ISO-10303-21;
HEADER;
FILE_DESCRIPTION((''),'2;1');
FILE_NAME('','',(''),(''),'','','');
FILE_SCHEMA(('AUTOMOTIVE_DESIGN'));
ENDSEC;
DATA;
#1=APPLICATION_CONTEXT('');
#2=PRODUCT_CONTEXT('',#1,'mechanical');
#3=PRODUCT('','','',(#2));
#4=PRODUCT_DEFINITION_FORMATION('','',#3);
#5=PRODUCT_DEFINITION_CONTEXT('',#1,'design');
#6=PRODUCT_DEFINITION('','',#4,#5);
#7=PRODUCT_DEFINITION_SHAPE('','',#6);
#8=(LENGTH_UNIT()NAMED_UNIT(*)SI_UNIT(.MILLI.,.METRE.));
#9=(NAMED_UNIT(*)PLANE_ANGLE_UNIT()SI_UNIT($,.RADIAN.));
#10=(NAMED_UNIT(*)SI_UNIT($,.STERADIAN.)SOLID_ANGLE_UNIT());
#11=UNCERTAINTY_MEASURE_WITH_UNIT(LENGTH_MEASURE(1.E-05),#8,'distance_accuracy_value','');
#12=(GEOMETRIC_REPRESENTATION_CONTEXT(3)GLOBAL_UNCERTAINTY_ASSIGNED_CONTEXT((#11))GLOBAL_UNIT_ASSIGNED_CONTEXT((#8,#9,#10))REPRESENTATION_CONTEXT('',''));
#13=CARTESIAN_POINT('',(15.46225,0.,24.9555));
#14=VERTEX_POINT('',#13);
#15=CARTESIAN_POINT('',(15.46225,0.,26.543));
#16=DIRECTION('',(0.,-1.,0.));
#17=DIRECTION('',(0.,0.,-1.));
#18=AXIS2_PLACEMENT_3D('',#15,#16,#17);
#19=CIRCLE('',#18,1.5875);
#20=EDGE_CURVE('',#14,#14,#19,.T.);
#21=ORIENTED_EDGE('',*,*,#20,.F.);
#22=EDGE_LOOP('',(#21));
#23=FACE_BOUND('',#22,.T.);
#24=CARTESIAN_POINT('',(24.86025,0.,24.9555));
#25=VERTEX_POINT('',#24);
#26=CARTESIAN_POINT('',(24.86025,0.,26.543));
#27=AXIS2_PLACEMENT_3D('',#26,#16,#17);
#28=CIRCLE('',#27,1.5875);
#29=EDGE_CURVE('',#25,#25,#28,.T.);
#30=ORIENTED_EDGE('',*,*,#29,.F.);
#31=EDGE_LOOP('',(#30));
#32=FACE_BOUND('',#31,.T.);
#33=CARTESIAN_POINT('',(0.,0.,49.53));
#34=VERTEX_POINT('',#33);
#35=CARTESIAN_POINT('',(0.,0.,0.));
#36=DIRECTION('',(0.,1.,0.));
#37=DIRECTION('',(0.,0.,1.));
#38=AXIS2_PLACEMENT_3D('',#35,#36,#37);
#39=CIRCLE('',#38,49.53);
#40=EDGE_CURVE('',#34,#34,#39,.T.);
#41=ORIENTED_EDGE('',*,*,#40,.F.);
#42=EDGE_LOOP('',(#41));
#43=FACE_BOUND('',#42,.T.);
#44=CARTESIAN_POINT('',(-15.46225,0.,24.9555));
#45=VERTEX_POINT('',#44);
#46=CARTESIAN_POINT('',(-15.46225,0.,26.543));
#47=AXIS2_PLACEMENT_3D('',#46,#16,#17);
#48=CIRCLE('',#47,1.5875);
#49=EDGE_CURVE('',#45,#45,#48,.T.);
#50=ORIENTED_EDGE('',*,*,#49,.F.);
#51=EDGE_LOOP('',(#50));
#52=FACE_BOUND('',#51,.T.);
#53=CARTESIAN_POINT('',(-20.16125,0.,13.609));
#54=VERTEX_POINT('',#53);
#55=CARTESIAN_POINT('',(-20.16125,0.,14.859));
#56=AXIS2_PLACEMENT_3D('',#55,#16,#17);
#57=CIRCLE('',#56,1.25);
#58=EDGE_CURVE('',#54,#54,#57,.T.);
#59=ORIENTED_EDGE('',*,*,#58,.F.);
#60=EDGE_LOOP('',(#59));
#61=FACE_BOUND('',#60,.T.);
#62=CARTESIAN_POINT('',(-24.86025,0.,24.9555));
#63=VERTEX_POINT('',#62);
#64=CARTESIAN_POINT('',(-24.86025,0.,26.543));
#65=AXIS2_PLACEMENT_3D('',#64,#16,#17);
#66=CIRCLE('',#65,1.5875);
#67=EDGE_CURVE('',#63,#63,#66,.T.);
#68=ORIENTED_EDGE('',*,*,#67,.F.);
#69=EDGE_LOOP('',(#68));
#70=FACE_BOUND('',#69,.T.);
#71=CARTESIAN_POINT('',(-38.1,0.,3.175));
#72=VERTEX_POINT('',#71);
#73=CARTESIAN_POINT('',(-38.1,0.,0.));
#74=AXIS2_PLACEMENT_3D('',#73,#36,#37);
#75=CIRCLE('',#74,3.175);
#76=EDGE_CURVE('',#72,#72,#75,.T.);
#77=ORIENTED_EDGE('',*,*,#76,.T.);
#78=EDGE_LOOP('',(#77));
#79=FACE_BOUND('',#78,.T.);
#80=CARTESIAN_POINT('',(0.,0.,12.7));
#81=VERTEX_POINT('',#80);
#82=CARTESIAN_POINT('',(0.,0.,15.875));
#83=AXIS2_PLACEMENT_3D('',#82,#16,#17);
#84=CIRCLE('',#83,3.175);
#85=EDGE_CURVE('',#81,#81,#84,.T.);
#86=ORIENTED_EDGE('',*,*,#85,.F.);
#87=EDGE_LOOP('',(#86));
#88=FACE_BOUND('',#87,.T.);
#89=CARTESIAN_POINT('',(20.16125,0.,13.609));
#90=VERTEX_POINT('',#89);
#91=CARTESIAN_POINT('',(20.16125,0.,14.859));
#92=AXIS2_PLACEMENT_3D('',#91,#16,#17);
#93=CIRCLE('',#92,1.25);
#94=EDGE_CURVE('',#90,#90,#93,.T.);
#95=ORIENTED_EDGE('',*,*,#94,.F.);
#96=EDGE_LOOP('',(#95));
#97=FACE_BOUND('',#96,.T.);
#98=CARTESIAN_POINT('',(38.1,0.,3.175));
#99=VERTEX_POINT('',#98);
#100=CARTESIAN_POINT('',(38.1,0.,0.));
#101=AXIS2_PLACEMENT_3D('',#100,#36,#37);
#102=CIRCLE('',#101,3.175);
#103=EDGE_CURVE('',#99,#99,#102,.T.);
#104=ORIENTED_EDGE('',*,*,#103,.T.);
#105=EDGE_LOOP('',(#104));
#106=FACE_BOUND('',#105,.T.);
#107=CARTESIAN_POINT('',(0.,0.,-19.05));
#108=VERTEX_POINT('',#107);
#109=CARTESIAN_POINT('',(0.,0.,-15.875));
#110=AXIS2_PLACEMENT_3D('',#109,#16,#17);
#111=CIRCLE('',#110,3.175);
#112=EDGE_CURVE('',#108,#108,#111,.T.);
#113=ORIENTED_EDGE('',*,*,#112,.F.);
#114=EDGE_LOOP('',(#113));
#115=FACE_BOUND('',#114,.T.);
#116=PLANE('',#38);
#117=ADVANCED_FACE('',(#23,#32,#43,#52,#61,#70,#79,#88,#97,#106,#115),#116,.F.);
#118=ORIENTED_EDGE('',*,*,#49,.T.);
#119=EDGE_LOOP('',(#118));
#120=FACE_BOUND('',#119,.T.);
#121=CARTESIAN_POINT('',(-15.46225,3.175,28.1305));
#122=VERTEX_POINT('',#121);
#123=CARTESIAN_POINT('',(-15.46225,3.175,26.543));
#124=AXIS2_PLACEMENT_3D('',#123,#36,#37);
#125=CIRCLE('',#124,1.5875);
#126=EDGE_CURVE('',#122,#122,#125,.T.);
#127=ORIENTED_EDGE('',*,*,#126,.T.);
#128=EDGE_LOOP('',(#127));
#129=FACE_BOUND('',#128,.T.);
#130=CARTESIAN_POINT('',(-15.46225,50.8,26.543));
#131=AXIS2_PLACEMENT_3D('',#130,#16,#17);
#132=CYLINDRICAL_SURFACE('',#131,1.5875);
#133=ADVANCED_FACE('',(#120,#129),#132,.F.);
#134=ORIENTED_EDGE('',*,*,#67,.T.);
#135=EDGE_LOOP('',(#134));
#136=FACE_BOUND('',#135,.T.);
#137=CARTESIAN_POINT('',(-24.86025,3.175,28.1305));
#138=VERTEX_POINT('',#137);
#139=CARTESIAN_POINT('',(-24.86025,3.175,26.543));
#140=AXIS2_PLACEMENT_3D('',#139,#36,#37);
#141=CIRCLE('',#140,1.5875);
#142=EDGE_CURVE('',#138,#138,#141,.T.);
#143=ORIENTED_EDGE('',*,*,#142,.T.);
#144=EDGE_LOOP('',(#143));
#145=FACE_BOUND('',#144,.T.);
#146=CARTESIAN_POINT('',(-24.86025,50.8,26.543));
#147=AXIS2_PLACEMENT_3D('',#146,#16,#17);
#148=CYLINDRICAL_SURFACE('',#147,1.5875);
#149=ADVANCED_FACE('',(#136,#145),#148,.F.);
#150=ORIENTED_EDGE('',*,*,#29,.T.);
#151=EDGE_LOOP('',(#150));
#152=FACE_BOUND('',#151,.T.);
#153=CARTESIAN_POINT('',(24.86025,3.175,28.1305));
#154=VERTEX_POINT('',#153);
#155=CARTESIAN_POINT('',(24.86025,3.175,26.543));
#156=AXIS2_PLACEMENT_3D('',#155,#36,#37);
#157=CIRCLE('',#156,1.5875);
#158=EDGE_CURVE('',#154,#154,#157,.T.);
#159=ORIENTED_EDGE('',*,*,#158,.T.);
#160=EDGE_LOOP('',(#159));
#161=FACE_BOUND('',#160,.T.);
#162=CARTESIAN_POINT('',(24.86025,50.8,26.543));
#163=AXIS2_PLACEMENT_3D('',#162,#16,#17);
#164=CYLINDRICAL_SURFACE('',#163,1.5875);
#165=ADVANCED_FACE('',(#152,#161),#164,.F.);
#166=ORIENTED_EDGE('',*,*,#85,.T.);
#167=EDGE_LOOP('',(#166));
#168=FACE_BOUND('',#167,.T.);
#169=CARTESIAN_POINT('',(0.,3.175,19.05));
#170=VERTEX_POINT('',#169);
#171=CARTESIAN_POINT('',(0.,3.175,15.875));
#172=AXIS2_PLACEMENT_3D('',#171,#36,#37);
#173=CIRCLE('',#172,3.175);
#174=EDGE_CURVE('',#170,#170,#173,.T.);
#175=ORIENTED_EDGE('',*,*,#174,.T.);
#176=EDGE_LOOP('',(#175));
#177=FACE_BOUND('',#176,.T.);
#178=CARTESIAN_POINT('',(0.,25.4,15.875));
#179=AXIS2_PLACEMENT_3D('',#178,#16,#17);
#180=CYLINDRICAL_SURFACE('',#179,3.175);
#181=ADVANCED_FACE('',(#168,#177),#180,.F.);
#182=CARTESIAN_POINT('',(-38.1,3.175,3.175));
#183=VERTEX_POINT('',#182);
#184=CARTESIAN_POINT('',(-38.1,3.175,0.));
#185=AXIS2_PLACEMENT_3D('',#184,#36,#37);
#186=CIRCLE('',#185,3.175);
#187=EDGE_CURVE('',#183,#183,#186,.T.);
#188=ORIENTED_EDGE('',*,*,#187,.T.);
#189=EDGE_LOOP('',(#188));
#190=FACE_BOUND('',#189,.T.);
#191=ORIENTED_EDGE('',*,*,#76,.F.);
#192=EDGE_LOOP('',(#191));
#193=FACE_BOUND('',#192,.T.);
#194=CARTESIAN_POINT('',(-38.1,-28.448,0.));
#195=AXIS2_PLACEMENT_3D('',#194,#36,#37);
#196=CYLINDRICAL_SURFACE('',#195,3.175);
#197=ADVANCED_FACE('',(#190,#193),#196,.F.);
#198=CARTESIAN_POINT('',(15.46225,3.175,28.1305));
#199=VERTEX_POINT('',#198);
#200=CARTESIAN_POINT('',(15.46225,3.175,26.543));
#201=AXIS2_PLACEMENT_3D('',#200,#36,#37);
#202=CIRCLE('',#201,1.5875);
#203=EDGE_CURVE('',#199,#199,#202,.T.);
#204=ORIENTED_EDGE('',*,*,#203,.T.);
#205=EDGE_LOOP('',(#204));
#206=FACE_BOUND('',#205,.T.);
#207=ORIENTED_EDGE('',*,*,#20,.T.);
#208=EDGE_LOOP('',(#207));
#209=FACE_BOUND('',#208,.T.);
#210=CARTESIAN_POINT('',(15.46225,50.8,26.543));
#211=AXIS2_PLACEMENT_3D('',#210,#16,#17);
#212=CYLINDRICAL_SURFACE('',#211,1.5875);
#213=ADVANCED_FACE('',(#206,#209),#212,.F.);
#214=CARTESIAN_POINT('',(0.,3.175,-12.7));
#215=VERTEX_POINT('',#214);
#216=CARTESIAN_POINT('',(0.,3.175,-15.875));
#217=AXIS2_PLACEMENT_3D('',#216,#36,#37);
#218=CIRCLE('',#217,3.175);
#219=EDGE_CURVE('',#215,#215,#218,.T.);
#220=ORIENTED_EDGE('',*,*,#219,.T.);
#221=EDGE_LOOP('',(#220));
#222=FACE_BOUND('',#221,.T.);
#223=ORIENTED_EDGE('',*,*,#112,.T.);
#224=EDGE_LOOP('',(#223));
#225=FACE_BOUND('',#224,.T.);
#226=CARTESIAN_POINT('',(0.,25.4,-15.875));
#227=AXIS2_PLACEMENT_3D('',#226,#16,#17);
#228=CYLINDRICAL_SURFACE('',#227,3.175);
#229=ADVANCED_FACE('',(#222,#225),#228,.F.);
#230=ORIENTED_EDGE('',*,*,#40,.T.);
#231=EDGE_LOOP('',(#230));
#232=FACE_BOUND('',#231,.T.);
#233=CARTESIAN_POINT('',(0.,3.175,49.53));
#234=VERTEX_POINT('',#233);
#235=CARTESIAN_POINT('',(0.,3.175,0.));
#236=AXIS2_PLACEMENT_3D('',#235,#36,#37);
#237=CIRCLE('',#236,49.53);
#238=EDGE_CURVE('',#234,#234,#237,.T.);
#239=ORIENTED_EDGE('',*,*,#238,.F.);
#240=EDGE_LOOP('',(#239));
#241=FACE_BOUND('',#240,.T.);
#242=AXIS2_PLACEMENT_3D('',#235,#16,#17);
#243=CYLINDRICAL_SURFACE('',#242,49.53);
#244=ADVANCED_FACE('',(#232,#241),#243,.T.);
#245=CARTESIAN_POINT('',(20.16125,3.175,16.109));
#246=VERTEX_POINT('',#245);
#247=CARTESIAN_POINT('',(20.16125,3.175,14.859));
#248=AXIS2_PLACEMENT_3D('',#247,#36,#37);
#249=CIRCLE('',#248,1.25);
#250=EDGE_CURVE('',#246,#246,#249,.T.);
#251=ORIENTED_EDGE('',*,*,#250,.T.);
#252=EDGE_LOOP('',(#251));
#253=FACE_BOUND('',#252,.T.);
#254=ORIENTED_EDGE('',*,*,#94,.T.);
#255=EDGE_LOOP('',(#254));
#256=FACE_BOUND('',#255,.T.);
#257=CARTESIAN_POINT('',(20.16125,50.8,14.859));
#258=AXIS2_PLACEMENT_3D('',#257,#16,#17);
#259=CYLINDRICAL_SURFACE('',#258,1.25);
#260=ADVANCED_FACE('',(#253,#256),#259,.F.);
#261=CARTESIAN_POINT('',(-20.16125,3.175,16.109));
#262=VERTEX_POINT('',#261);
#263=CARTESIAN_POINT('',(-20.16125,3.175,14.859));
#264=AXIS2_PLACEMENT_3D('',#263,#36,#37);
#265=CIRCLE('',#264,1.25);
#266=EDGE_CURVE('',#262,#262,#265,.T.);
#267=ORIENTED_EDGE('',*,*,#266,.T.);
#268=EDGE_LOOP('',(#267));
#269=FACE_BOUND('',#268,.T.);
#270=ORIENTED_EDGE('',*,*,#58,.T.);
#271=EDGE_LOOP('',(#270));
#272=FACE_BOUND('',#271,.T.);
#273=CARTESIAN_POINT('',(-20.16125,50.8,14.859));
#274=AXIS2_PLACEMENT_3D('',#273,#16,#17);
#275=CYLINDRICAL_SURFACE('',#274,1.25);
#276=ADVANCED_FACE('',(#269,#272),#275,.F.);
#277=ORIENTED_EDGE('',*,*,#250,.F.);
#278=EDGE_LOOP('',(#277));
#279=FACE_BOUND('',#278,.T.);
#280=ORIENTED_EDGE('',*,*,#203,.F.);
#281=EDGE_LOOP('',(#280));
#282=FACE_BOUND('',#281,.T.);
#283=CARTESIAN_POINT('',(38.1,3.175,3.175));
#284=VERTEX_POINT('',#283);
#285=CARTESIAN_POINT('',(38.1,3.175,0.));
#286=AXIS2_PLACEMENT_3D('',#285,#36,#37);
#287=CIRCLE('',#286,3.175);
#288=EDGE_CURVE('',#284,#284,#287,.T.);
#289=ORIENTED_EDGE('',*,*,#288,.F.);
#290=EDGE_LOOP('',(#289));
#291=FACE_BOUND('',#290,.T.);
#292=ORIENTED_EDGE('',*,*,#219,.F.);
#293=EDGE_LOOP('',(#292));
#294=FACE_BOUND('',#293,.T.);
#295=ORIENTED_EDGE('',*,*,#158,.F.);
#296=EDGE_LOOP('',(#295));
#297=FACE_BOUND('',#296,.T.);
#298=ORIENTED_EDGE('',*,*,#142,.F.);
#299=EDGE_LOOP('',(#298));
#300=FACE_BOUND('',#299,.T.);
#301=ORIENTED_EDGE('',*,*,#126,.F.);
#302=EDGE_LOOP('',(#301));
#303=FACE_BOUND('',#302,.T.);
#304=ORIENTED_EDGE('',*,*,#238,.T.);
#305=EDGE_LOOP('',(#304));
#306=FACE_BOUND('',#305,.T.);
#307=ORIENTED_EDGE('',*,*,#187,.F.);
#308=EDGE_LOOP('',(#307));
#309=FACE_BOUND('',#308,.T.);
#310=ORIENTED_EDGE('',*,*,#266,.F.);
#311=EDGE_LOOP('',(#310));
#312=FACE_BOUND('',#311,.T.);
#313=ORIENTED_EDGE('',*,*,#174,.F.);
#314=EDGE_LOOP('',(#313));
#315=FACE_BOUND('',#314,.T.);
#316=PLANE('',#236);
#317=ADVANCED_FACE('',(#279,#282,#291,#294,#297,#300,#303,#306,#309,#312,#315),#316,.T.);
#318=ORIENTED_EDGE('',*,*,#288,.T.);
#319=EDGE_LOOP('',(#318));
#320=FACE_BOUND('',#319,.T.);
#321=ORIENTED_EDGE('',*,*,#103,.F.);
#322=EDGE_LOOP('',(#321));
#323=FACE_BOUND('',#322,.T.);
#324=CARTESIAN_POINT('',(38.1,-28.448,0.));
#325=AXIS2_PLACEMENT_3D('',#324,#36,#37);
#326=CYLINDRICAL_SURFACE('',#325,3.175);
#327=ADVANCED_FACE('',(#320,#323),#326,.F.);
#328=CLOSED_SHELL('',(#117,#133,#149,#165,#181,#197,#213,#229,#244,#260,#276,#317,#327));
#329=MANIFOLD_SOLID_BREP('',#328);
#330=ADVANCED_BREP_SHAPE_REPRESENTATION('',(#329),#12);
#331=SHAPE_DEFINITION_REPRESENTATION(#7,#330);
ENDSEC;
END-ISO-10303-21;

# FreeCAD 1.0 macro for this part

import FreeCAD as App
import Part
import Sketcher

V = App.Vector
Q = App.Units.Quantity

doc = App.newDocument("Part")
body = doc.addObject("PartDesign::Body", "Body")

sketch1 = body.newObject("Sketcher::SketchObject", "Sketch")
sketch1.AttachmentSupport = (doc.getObject("XZ_Plane"), [""])
sketch1.MapMode = "FlatFace"
sketch1.addGeometry(Part.Circle(V(0, 0, 0), V(0, 0, 1), 50), False)
sketch1.addConstraint([
    Sketcher.Constraint("Coincident", 0, 3, -1, 1),
    Sketcher.Constraint("Diameter", 0, Q("3.9 in")),
])
pad1 = body.newObject("PartDesign::Pad", "Pad")
pad1.Profile = sketch1
pad1.Length = Q("0.125 in")
pad1.Reversed = True

sketch2 = body.newObject("Sketcher::SketchObject", "Sketch001")
sketch2.AttachmentSupport = (doc.getObject("XZ_Plane"), [""])
sketch2.MapMode = "FlatFace"
sketch2.AttachmentOffset = App.Placement(V(0, 0, -9.25 * 25.4), App.Rotation())
sketch2.addGeometry([
    Part.Circle(V(38.1, 0, 0), V(0, 0, 1), 3.2),
    Part.Circle(V(-38.1, 0, 0), V(0, 0, 1), 3.2),
], False)
sketch2.addConstraint([
    Sketcher.Constraint("Equal", 0, 1),
    Sketcher.Constraint("Symmetric", 0, 3, 1, 3, -1, 1),
    Sketcher.Constraint("PointOnObject", 0, 3, -1),
    Sketcher.Constraint("Diameter", 0, Q("0.25 in")),
    Sketcher.Constraint("DistanceX", 1, 3, 0, 3, Q("3 in")),
])
pocket1 = body.newObject("PartDesign::Pocket", "Pocket")
pocket1.Profile = sketch2
pocket1.Length = Q("10.37 in")
pocket1.Reversed = True

sketch3 = body.newObject("Sketcher::SketchObject", "Sketch002")
sketch3.AttachmentSupport = (doc.getObject("XZ_Plane"), [""])
sketch3.MapMode = "FlatFace"
sketch3.addGeometry([
    Part.Circle(V(0, 15.9, 0), V(0, 0, 1), 3.2),
    Part.Circle(V(0, -15.9, 0), V(0, 0, 1), 3.2),
], False)
sketch3.addConstraint([
    Sketcher.Constraint("Equal", 0, 1),
    Sketcher.Constraint("Symmetric", 0, 3, 1, 3, -1, 1),
    Sketcher.Constraint("PointOnObject", 0, 3, -2),
    Sketcher.Constraint("Diameter", 0, Q("0.25 in")),
    Sketcher.Constraint("DistanceY", 1, 3, 0, 3, Q("1.25 in")),
])
pocket2 = body.newObject("PartDesign::Pocket", "Pocket001")
pocket2.Profile = sketch3
pocket2.Length = Q("1 in")

sketch4 = body.newObject("Sketcher::SketchObject", "Sketch003")
sketch4.AttachmentSupport = (doc.getObject("XZ_Plane"), [""])
sketch4.MapMode = "FlatFace"
sketch4.addGeometry([
    Part.Circle(V(-24.9, 26.5, 0), V(0, 0, 1), 1.6),
    Part.Circle(V(-15.5, 26.5, 0), V(0, 0, 1), 1.6),
    Part.Circle(V(15.5, 26.5, 0), V(0, 0, 1), 1.6),
    Part.Circle(V(24.9, 26.5, 0), V(0, 0, 1), 1.6),
    Part.Circle(V(-20.2, 14.9, 0), V(0, 0, 1), 1.2),
    Part.Circle(V(20.2, 14.9, 0), V(0, 0, 1), 1.2),
], False)
sketch4.addConstraint([
    Sketcher.Constraint("Equal", 0, 1),
    Sketcher.Constraint("Equal", 1, 2),
    Sketcher.Constraint("Equal", 2, 3),
    Sketcher.Constraint("Equal", 4, 5),
    Sketcher.Constraint("Symmetric", 1, 3, 2, 3, -2),
    Sketcher.Constraint("Symmetric", 0, 3, 3, 3, -2),
    Sketcher.Constraint("Symmetric", 4, 3, 5, 3, -2),
    Sketcher.Constraint("Horizontal", 0, 3, 1, 3),
    Sketcher.Constraint("Diameter", 0, Q("0.125 in")),
    Sketcher.Constraint("Diameter", 4, 2.5),
    Sketcher.Constraint("DistanceX", 0, 3, 1, 3, Q("0.37 in")),
    Sketcher.Constraint("DistanceY", 4, 3, 1, 3, Q("0.46 in")),
    Sketcher.Constraint("DistanceY", -1, 1, 0, 3, Q("1.045 in")),
    Sketcher.Constraint("DistanceX", 4, 3, 1, 3, Q("0.185 in")),
    Sketcher.Constraint("DistanceX", 1, 3, 2, 3, Q("1.2175 in")),
])
pocket3 = body.newObject("PartDesign::Pocket", "Pocket002")
pocket3.Profile = sketch4
pocket3.Length = Q("2 in")

doc.recompute()
